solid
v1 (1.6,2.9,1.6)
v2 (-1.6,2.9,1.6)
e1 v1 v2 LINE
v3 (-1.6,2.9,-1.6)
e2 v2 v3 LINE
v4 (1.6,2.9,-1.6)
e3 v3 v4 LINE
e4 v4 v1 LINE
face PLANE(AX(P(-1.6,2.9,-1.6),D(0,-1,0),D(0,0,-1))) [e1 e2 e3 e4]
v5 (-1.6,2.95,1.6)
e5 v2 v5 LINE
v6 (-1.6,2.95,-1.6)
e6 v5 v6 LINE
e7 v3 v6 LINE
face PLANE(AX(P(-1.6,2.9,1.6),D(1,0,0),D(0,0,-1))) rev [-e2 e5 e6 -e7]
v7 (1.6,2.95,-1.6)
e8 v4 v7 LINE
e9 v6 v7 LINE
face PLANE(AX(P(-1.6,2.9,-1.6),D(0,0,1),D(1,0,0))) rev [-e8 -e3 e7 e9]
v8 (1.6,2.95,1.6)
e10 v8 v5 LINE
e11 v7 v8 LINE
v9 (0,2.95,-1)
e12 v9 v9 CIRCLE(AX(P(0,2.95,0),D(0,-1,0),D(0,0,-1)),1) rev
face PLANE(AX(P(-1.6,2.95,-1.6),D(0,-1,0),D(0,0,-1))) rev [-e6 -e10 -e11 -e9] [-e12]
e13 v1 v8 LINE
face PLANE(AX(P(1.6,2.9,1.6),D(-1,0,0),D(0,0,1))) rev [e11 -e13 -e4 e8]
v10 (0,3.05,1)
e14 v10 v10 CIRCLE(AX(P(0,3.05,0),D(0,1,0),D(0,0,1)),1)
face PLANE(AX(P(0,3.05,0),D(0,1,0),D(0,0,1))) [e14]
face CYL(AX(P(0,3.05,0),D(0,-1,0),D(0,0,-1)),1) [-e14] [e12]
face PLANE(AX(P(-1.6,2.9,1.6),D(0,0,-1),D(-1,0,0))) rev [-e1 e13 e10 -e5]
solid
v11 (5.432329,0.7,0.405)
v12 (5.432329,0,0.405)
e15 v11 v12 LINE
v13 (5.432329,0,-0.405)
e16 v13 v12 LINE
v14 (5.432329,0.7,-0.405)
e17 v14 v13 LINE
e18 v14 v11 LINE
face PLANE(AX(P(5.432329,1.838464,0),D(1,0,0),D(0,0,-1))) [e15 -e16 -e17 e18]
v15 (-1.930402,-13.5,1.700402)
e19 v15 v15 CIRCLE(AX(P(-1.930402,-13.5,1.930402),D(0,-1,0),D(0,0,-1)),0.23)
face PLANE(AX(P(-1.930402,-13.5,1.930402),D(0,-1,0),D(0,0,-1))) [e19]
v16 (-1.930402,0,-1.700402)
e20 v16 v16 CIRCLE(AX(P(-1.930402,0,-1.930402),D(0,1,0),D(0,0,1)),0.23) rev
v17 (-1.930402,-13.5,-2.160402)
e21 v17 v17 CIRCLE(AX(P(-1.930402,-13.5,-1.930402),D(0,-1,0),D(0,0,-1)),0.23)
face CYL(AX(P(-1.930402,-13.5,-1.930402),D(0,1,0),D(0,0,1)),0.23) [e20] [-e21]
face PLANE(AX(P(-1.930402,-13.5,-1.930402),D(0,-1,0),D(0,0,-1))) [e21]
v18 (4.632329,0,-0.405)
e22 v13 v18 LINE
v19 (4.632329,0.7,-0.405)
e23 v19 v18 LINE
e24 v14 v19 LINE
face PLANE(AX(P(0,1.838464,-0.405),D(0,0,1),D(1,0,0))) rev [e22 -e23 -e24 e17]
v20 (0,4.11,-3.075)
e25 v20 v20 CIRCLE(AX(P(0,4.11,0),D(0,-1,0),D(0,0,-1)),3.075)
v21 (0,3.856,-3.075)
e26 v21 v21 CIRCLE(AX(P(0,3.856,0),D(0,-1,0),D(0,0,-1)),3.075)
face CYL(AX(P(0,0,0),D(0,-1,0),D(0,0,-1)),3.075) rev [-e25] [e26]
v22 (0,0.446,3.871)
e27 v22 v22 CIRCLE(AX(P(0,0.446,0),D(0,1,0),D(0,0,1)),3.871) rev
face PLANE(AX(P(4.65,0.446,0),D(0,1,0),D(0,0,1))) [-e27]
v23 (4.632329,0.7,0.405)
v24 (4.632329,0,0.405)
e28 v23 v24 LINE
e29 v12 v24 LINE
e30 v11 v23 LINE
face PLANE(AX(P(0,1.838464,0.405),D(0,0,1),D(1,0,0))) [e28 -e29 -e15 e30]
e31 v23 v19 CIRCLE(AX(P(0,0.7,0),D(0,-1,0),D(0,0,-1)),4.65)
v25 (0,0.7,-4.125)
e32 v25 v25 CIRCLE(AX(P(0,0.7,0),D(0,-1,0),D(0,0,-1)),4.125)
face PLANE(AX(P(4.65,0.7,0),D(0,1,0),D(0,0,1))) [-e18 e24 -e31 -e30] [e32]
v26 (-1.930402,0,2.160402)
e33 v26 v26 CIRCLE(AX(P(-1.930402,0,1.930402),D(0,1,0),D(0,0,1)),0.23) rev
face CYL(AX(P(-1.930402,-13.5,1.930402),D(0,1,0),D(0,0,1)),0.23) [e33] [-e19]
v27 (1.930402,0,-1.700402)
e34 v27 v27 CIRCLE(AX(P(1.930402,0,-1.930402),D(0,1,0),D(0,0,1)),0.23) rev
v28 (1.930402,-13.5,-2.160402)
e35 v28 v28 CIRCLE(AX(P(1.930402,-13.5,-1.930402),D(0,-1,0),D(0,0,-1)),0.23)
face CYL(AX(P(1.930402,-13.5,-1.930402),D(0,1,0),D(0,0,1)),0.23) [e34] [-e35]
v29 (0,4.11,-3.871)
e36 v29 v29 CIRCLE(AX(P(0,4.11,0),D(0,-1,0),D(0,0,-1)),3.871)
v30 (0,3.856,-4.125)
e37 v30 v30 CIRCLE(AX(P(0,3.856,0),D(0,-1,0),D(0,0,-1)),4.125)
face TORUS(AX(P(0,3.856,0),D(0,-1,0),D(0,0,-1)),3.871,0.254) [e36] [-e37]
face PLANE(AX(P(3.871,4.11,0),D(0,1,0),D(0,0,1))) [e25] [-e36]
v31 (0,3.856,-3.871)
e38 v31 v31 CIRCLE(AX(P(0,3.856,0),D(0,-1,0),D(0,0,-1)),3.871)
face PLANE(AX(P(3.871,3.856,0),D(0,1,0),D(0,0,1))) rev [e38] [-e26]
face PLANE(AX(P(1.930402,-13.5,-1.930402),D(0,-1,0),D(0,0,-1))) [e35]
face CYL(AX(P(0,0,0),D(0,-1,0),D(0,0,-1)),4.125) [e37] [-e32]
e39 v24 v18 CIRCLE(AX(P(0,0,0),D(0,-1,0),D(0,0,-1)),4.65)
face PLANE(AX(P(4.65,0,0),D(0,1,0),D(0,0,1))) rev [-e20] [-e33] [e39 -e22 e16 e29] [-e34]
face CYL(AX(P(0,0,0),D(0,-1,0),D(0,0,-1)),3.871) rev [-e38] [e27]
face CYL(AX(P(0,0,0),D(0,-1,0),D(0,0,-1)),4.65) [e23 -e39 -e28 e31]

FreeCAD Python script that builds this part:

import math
import FreeCAD as App
import Part
import Sketcher
from FreeCAD import Vector


def add_polygon(sketch, points):
    """Adds a closed chain of lines whose ends are joined by coincident constraints."""
    first, n = sketch.GeometryCount, len(points)
    for a, b in zip(points, points[1:] + points[:1]):
        sketch.addGeometry(Part.LineSegment(App.Vector(*a, 0), App.Vector(*b, 0)), False)
    for i in range(n):
        sketch.addConstraint(Sketcher.Constraint("Coincident", first + i, 2, first + (i + 1) % n, 1))

doc = App.newDocument("Part")
body = doc.addObject("PartDesign::Body", "Body")

# Sketch on XY plane
sketch1 = body.newObject("Sketcher::SketchObject", "Sketch")
sketch1.AttachmentSupport = (doc.getObject("XY_Plane"), [""])
sketch1.MapMode = "FlatFace"
sketch1.addGeometry([
    Part.LineSegment(Vector(4.65, 0, 0), Vector(4.65, 0.7, 0)),  # 0
    Part.LineSegment(Vector(4.65, 0.7, 0), Vector(4.125, 0.7, 0)),  # 1
    Part.LineSegment(Vector(4.125, 0.7, 0), Vector(4.125, 3.856, 0)),  # 2
    Part.ArcOfCircle(Part.Circle(Vector(3.871, 3.856, 0), Vector(0, 0, 1), 0.254), math.radians(0), math.radians(90)),  # 3
    Part.LineSegment(Vector(3.871, 4.11, 0), Vector(3.075, 4.11, 0)),  # 4
    Part.LineSegment(Vector(3.075, 4.11, 0), Vector(3.075, 3.856, 0)),  # 5
    Part.LineSegment(Vector(3.075, 3.856, 0), Vector(3.871, 3.856, 0)),  # 6
    Part.LineSegment(Vector(3.871, 3.856, 0), Vector(3.871, 0.446, 0)),  # 7
    Part.LineSegment(Vector(3.871, 0.446, 0), Vector(4.396, 0.446, 0)),  # 8
    Part.LineSegment(Vector(4.396, 0.446, 0), Vector(4.396, 0, 0)),  # 9
    Part.LineSegment(Vector(4.396, 0, 0), Vector(4.65, 0, 0)),  # 10
], False)
sketch1.addConstraint([
    Sketcher.Constraint("Coincident", 0, 2, 1, 1),
    Sketcher.Constraint("Coincident", 1, 2, 2, 1),
    Sketcher.Constraint("Tangent", 2, 2, 3, 1),
    Sketcher.Constraint("Tangent", 3, 2, 4, 1),
    Sketcher.Constraint("Coincident", 4, 2, 5, 1),
    Sketcher.Constraint("Coincident", 5, 2, 6, 1),
    Sketcher.Constraint("Coincident", 6, 2, 7, 1),
    Sketcher.Constraint("Coincident", 7, 2, 8, 1),
    Sketcher.Constraint("Coincident", 8, 2, 9, 1),
    Sketcher.Constraint("Coincident", 9, 2, 10, 1),
    Sketcher.Constraint("Coincident", 10, 2, 0, 1),
    Sketcher.Constraint("Vertical", 0),
    Sketcher.Constraint("Horizontal", 1),
    Sketcher.Constraint("Vertical", 2),
    Sketcher.Constraint("Horizontal", 4),
    Sketcher.Constraint("Vertical", 5),
    Sketcher.Constraint("Horizontal", 6),
    Sketcher.Constraint("Vertical", 7),
    Sketcher.Constraint("Horizontal", 8),
    Sketcher.Constraint("Vertical", 9),
    Sketcher.Constraint("Horizontal", 10),
    Sketcher.Constraint("Coincident", 6, 2, 3, 3),
    Sketcher.Constraint("PointOnObject", 9, 2, -1),
    Sketcher.Constraint("Equal", 1, 8),
    Sketcher.Constraint("DistanceY", 0, 1, 0, 2, 0.7),
    Sketcher.Constraint("Radius", 3, 0.254),
    Sketcher.Constraint("DistanceY", 7, 2, 7, 1, 3.41),
    Sketcher.Constraint("DistanceX", 1, 2, 1, 1, 0.525),
    Sketcher.Constraint("DistanceX", 4, 2, 4, 1, 0.796),
    Sketcher.Constraint("DistanceY", 2, 1, 2, 2, 3.156),
    Sketcher.Constraint("DistanceX", -1, 1, 0, 2, 4.65),
])
revolution = body.newObject("PartDesign::Revolution", "Revolution")
revolution.Profile = sketch1
revolution.ReferenceAxis = (sketch1, ["V_Axis"])
revolution.Angle = 360

# Sketch on XZ plane
sketch2 = body.newObject("Sketcher::SketchObject", "Sketch001")
sketch2.AttachmentSupport = (doc.getObject("XZ_Plane"), [""])
sketch2.MapMode = "FlatFace"
sketch2.addGeometry(Part.Circle(Vector(0, 0, 0), Vector(0, 0, 1), 4.65), False)
sketch2.addConstraint([
    Sketcher.Constraint("Coincident", 0, 3, -1, 1),
    Sketcher.Constraint("Diameter", 0, 9.3),
])
pad1 = body.newObject("PartDesign::Pad", "Pad")
pad1.Profile = sketch2
pad1.Length = 0.446
pad1.Reversed = True

# Sketch on XZ plane
sketch3 = body.newObject("Sketcher::SketchObject", "Sketch002")
sketch3.AttachmentSupport = (doc.getObject("XZ_Plane"), [""])
sketch3.MapMode = "FlatFace"
sketch3.addGeometry([
    Part.LineSegment(Vector(5.432329, -0.405, 0), Vector(5.432329, 0.405, 0)),  # 0
    Part.LineSegment(Vector(5.432329, 0.405, 0), Vector(4.632329, 0.405, 0)),  # 1
    Part.ArcOfCircle(Part.Circle(Vector(-0.000001, 0, 0), Vector(0, 0, 1), 4.650001), math.radians(0), math.radians(4.996608)),  # 2
    Part.ArcOfCircle(Part.Circle(Vector(-0.000001, 0, 0), Vector(0, 0, 1), 4.650001), math.radians(-4.996608), math.radians(0)),  # 3
    Part.LineSegment(Vector(4.632329, -0.405, 0), Vector(5.432329, -0.405, 0)),  # 4
], False)
sketch3.addConstraint([
    Sketcher.Constraint("Coincident", 0, 2, 1, 1),
    Sketcher.Constraint("Coincident", 1, 2, 2, 2),
    Sketcher.Constraint("Tangent", 2, 1, 3, 2),
    Sketcher.Constraint("Coincident", 3, 1, 4, 1),
    Sketcher.Constraint("Coincident", 4, 2, 0, 1),
    Sketcher.Constraint("Vertical", 0),
    Sketcher.Constraint("Horizontal", 1),
    Sketcher.Constraint("Horizontal", 4),
    Sketcher.Constraint("Coincident", 2, 3, -1, 1),
    Sketcher.Constraint("Equal", 2, 3),
    Sketcher.Constraint("PointOnObject", 2, 1, -1),
    Sketcher.Constraint("Vertical", 1, 2, 3, 1),
    Sketcher.Constraint("Radius", 2, 4.650001),
    Sketcher.Constraint("DistanceX", 1, 2, 1, 1, 0.8),
    Sketcher.Constraint("DistanceY", 0, 1, 0, 2, 0.81),
])
pad2 = body.newObject("PartDesign::Pad", "Pad001")
pad2.Profile = sketch3
pad2.Length = 0.7
pad2.Reversed = True

# Sketch on XZ plane
sketch4 = body.newObject("Sketcher::SketchObject", "Sketch003")
sketch4.AttachmentSupport = (doc.getObject("XZ_Plane"), [""])
sketch4.MapMode = "FlatFace"
sketch4.addGeometry([
    Part.Circle(Vector(1.930402, -1.930402, 0), Vector(0, 0, 1), 0.23),
    Part.Circle(Vector(-1.930402, 1.930402, 0), Vector(0, 0, 1), 0.23),
    Part.Circle(Vector(-1.930402, -1.930402, 0), Vector(0, 0, 1), 0.23),
], False)
sketch4.addConstraint([
    Sketcher.Constraint("Equal", 0, 1),
    Sketcher.Constraint("Equal", 1, 2),
    Sketcher.Constraint("Symmetric", 0, 3, 1, 3, -1, 1),
    Sketcher.Constraint("Symmetric", 0, 3, 2, 3, -2),
    Sketcher.Constraint("Diameter", 0, 0.46),
    Sketcher.Constraint("DistanceX", -1, 1, 0, 3, 1.930402),
    Sketcher.Constraint("DistanceY", 0, 3, -1, 1, 1.930402),
])
pad3 = body.newObject("PartDesign::Pad", "Pad002")
pad3.Profile = sketch4
pad3.Length = 13.5
body2 = doc.addObject("PartDesign::Body", "Body001")

# Sketch on XZ plane
sketch5 = body2.newObject("Sketcher::SketchObject", "Sketch004")
sketch5.AttachmentSupport = (doc.getObject("XZ_Plane001"), [""])
sketch5.MapMode = "FlatFace"
sketch5.AttachmentOffset = App.Placement(Vector(0, 0, -2.95), App.Rotation())
add_polygon(sketch5, [(-1.6, 1.6), (-1.6, -1.6), (1.6, -1.6), (1.6, 1.6)])  # lines 0-3
sketch5.addConstraint([
    Sketcher.Constraint("Vertical", 0),
    Sketcher.Constraint("Horizontal", 1),
    Sketcher.Constraint("Vertical", 2),
    Sketcher.Constraint("Horizontal", 3),
    Sketcher.Constraint("Symmetric", 0, 2, 2, 2, -1, 1),
    Sketcher.Constraint("Equal", 3, 0),
    Sketcher.Constraint("DistanceX", 1, 1, 1, 2, 3.2),
])
pad4 = body2.newObject("PartDesign::Pad", "Pad003")
pad4.Profile = sketch5
pad4.Length = 0.05

# Sketch on XZ plane
sketch6 = body2.newObject("Sketcher::SketchObject", "Sketch005")
sketch6.AttachmentSupport = (doc.getObject("XZ_Plane001"), [""])
sketch6.MapMode = "FlatFace"
sketch6.AttachmentOffset = App.Placement(Vector(0, 0, -2.95), App.Rotation())
sketch6.addGeometry(Part.Circle(Vector(0, 0, 0), Vector(0, 0, 1), 1), False)
sketch6.addConstraint([
    Sketcher.Constraint("Coincident", 0, 3, -1, 1),
    Sketcher.Constraint("Diameter", 0, 2.0),
])
pad5 = body2.newObject("PartDesign::Pad", "Pad004")
pad5.Profile = sketch6
pad5.Length = 0.1
pad5.Reversed = True

doc.recompute()
